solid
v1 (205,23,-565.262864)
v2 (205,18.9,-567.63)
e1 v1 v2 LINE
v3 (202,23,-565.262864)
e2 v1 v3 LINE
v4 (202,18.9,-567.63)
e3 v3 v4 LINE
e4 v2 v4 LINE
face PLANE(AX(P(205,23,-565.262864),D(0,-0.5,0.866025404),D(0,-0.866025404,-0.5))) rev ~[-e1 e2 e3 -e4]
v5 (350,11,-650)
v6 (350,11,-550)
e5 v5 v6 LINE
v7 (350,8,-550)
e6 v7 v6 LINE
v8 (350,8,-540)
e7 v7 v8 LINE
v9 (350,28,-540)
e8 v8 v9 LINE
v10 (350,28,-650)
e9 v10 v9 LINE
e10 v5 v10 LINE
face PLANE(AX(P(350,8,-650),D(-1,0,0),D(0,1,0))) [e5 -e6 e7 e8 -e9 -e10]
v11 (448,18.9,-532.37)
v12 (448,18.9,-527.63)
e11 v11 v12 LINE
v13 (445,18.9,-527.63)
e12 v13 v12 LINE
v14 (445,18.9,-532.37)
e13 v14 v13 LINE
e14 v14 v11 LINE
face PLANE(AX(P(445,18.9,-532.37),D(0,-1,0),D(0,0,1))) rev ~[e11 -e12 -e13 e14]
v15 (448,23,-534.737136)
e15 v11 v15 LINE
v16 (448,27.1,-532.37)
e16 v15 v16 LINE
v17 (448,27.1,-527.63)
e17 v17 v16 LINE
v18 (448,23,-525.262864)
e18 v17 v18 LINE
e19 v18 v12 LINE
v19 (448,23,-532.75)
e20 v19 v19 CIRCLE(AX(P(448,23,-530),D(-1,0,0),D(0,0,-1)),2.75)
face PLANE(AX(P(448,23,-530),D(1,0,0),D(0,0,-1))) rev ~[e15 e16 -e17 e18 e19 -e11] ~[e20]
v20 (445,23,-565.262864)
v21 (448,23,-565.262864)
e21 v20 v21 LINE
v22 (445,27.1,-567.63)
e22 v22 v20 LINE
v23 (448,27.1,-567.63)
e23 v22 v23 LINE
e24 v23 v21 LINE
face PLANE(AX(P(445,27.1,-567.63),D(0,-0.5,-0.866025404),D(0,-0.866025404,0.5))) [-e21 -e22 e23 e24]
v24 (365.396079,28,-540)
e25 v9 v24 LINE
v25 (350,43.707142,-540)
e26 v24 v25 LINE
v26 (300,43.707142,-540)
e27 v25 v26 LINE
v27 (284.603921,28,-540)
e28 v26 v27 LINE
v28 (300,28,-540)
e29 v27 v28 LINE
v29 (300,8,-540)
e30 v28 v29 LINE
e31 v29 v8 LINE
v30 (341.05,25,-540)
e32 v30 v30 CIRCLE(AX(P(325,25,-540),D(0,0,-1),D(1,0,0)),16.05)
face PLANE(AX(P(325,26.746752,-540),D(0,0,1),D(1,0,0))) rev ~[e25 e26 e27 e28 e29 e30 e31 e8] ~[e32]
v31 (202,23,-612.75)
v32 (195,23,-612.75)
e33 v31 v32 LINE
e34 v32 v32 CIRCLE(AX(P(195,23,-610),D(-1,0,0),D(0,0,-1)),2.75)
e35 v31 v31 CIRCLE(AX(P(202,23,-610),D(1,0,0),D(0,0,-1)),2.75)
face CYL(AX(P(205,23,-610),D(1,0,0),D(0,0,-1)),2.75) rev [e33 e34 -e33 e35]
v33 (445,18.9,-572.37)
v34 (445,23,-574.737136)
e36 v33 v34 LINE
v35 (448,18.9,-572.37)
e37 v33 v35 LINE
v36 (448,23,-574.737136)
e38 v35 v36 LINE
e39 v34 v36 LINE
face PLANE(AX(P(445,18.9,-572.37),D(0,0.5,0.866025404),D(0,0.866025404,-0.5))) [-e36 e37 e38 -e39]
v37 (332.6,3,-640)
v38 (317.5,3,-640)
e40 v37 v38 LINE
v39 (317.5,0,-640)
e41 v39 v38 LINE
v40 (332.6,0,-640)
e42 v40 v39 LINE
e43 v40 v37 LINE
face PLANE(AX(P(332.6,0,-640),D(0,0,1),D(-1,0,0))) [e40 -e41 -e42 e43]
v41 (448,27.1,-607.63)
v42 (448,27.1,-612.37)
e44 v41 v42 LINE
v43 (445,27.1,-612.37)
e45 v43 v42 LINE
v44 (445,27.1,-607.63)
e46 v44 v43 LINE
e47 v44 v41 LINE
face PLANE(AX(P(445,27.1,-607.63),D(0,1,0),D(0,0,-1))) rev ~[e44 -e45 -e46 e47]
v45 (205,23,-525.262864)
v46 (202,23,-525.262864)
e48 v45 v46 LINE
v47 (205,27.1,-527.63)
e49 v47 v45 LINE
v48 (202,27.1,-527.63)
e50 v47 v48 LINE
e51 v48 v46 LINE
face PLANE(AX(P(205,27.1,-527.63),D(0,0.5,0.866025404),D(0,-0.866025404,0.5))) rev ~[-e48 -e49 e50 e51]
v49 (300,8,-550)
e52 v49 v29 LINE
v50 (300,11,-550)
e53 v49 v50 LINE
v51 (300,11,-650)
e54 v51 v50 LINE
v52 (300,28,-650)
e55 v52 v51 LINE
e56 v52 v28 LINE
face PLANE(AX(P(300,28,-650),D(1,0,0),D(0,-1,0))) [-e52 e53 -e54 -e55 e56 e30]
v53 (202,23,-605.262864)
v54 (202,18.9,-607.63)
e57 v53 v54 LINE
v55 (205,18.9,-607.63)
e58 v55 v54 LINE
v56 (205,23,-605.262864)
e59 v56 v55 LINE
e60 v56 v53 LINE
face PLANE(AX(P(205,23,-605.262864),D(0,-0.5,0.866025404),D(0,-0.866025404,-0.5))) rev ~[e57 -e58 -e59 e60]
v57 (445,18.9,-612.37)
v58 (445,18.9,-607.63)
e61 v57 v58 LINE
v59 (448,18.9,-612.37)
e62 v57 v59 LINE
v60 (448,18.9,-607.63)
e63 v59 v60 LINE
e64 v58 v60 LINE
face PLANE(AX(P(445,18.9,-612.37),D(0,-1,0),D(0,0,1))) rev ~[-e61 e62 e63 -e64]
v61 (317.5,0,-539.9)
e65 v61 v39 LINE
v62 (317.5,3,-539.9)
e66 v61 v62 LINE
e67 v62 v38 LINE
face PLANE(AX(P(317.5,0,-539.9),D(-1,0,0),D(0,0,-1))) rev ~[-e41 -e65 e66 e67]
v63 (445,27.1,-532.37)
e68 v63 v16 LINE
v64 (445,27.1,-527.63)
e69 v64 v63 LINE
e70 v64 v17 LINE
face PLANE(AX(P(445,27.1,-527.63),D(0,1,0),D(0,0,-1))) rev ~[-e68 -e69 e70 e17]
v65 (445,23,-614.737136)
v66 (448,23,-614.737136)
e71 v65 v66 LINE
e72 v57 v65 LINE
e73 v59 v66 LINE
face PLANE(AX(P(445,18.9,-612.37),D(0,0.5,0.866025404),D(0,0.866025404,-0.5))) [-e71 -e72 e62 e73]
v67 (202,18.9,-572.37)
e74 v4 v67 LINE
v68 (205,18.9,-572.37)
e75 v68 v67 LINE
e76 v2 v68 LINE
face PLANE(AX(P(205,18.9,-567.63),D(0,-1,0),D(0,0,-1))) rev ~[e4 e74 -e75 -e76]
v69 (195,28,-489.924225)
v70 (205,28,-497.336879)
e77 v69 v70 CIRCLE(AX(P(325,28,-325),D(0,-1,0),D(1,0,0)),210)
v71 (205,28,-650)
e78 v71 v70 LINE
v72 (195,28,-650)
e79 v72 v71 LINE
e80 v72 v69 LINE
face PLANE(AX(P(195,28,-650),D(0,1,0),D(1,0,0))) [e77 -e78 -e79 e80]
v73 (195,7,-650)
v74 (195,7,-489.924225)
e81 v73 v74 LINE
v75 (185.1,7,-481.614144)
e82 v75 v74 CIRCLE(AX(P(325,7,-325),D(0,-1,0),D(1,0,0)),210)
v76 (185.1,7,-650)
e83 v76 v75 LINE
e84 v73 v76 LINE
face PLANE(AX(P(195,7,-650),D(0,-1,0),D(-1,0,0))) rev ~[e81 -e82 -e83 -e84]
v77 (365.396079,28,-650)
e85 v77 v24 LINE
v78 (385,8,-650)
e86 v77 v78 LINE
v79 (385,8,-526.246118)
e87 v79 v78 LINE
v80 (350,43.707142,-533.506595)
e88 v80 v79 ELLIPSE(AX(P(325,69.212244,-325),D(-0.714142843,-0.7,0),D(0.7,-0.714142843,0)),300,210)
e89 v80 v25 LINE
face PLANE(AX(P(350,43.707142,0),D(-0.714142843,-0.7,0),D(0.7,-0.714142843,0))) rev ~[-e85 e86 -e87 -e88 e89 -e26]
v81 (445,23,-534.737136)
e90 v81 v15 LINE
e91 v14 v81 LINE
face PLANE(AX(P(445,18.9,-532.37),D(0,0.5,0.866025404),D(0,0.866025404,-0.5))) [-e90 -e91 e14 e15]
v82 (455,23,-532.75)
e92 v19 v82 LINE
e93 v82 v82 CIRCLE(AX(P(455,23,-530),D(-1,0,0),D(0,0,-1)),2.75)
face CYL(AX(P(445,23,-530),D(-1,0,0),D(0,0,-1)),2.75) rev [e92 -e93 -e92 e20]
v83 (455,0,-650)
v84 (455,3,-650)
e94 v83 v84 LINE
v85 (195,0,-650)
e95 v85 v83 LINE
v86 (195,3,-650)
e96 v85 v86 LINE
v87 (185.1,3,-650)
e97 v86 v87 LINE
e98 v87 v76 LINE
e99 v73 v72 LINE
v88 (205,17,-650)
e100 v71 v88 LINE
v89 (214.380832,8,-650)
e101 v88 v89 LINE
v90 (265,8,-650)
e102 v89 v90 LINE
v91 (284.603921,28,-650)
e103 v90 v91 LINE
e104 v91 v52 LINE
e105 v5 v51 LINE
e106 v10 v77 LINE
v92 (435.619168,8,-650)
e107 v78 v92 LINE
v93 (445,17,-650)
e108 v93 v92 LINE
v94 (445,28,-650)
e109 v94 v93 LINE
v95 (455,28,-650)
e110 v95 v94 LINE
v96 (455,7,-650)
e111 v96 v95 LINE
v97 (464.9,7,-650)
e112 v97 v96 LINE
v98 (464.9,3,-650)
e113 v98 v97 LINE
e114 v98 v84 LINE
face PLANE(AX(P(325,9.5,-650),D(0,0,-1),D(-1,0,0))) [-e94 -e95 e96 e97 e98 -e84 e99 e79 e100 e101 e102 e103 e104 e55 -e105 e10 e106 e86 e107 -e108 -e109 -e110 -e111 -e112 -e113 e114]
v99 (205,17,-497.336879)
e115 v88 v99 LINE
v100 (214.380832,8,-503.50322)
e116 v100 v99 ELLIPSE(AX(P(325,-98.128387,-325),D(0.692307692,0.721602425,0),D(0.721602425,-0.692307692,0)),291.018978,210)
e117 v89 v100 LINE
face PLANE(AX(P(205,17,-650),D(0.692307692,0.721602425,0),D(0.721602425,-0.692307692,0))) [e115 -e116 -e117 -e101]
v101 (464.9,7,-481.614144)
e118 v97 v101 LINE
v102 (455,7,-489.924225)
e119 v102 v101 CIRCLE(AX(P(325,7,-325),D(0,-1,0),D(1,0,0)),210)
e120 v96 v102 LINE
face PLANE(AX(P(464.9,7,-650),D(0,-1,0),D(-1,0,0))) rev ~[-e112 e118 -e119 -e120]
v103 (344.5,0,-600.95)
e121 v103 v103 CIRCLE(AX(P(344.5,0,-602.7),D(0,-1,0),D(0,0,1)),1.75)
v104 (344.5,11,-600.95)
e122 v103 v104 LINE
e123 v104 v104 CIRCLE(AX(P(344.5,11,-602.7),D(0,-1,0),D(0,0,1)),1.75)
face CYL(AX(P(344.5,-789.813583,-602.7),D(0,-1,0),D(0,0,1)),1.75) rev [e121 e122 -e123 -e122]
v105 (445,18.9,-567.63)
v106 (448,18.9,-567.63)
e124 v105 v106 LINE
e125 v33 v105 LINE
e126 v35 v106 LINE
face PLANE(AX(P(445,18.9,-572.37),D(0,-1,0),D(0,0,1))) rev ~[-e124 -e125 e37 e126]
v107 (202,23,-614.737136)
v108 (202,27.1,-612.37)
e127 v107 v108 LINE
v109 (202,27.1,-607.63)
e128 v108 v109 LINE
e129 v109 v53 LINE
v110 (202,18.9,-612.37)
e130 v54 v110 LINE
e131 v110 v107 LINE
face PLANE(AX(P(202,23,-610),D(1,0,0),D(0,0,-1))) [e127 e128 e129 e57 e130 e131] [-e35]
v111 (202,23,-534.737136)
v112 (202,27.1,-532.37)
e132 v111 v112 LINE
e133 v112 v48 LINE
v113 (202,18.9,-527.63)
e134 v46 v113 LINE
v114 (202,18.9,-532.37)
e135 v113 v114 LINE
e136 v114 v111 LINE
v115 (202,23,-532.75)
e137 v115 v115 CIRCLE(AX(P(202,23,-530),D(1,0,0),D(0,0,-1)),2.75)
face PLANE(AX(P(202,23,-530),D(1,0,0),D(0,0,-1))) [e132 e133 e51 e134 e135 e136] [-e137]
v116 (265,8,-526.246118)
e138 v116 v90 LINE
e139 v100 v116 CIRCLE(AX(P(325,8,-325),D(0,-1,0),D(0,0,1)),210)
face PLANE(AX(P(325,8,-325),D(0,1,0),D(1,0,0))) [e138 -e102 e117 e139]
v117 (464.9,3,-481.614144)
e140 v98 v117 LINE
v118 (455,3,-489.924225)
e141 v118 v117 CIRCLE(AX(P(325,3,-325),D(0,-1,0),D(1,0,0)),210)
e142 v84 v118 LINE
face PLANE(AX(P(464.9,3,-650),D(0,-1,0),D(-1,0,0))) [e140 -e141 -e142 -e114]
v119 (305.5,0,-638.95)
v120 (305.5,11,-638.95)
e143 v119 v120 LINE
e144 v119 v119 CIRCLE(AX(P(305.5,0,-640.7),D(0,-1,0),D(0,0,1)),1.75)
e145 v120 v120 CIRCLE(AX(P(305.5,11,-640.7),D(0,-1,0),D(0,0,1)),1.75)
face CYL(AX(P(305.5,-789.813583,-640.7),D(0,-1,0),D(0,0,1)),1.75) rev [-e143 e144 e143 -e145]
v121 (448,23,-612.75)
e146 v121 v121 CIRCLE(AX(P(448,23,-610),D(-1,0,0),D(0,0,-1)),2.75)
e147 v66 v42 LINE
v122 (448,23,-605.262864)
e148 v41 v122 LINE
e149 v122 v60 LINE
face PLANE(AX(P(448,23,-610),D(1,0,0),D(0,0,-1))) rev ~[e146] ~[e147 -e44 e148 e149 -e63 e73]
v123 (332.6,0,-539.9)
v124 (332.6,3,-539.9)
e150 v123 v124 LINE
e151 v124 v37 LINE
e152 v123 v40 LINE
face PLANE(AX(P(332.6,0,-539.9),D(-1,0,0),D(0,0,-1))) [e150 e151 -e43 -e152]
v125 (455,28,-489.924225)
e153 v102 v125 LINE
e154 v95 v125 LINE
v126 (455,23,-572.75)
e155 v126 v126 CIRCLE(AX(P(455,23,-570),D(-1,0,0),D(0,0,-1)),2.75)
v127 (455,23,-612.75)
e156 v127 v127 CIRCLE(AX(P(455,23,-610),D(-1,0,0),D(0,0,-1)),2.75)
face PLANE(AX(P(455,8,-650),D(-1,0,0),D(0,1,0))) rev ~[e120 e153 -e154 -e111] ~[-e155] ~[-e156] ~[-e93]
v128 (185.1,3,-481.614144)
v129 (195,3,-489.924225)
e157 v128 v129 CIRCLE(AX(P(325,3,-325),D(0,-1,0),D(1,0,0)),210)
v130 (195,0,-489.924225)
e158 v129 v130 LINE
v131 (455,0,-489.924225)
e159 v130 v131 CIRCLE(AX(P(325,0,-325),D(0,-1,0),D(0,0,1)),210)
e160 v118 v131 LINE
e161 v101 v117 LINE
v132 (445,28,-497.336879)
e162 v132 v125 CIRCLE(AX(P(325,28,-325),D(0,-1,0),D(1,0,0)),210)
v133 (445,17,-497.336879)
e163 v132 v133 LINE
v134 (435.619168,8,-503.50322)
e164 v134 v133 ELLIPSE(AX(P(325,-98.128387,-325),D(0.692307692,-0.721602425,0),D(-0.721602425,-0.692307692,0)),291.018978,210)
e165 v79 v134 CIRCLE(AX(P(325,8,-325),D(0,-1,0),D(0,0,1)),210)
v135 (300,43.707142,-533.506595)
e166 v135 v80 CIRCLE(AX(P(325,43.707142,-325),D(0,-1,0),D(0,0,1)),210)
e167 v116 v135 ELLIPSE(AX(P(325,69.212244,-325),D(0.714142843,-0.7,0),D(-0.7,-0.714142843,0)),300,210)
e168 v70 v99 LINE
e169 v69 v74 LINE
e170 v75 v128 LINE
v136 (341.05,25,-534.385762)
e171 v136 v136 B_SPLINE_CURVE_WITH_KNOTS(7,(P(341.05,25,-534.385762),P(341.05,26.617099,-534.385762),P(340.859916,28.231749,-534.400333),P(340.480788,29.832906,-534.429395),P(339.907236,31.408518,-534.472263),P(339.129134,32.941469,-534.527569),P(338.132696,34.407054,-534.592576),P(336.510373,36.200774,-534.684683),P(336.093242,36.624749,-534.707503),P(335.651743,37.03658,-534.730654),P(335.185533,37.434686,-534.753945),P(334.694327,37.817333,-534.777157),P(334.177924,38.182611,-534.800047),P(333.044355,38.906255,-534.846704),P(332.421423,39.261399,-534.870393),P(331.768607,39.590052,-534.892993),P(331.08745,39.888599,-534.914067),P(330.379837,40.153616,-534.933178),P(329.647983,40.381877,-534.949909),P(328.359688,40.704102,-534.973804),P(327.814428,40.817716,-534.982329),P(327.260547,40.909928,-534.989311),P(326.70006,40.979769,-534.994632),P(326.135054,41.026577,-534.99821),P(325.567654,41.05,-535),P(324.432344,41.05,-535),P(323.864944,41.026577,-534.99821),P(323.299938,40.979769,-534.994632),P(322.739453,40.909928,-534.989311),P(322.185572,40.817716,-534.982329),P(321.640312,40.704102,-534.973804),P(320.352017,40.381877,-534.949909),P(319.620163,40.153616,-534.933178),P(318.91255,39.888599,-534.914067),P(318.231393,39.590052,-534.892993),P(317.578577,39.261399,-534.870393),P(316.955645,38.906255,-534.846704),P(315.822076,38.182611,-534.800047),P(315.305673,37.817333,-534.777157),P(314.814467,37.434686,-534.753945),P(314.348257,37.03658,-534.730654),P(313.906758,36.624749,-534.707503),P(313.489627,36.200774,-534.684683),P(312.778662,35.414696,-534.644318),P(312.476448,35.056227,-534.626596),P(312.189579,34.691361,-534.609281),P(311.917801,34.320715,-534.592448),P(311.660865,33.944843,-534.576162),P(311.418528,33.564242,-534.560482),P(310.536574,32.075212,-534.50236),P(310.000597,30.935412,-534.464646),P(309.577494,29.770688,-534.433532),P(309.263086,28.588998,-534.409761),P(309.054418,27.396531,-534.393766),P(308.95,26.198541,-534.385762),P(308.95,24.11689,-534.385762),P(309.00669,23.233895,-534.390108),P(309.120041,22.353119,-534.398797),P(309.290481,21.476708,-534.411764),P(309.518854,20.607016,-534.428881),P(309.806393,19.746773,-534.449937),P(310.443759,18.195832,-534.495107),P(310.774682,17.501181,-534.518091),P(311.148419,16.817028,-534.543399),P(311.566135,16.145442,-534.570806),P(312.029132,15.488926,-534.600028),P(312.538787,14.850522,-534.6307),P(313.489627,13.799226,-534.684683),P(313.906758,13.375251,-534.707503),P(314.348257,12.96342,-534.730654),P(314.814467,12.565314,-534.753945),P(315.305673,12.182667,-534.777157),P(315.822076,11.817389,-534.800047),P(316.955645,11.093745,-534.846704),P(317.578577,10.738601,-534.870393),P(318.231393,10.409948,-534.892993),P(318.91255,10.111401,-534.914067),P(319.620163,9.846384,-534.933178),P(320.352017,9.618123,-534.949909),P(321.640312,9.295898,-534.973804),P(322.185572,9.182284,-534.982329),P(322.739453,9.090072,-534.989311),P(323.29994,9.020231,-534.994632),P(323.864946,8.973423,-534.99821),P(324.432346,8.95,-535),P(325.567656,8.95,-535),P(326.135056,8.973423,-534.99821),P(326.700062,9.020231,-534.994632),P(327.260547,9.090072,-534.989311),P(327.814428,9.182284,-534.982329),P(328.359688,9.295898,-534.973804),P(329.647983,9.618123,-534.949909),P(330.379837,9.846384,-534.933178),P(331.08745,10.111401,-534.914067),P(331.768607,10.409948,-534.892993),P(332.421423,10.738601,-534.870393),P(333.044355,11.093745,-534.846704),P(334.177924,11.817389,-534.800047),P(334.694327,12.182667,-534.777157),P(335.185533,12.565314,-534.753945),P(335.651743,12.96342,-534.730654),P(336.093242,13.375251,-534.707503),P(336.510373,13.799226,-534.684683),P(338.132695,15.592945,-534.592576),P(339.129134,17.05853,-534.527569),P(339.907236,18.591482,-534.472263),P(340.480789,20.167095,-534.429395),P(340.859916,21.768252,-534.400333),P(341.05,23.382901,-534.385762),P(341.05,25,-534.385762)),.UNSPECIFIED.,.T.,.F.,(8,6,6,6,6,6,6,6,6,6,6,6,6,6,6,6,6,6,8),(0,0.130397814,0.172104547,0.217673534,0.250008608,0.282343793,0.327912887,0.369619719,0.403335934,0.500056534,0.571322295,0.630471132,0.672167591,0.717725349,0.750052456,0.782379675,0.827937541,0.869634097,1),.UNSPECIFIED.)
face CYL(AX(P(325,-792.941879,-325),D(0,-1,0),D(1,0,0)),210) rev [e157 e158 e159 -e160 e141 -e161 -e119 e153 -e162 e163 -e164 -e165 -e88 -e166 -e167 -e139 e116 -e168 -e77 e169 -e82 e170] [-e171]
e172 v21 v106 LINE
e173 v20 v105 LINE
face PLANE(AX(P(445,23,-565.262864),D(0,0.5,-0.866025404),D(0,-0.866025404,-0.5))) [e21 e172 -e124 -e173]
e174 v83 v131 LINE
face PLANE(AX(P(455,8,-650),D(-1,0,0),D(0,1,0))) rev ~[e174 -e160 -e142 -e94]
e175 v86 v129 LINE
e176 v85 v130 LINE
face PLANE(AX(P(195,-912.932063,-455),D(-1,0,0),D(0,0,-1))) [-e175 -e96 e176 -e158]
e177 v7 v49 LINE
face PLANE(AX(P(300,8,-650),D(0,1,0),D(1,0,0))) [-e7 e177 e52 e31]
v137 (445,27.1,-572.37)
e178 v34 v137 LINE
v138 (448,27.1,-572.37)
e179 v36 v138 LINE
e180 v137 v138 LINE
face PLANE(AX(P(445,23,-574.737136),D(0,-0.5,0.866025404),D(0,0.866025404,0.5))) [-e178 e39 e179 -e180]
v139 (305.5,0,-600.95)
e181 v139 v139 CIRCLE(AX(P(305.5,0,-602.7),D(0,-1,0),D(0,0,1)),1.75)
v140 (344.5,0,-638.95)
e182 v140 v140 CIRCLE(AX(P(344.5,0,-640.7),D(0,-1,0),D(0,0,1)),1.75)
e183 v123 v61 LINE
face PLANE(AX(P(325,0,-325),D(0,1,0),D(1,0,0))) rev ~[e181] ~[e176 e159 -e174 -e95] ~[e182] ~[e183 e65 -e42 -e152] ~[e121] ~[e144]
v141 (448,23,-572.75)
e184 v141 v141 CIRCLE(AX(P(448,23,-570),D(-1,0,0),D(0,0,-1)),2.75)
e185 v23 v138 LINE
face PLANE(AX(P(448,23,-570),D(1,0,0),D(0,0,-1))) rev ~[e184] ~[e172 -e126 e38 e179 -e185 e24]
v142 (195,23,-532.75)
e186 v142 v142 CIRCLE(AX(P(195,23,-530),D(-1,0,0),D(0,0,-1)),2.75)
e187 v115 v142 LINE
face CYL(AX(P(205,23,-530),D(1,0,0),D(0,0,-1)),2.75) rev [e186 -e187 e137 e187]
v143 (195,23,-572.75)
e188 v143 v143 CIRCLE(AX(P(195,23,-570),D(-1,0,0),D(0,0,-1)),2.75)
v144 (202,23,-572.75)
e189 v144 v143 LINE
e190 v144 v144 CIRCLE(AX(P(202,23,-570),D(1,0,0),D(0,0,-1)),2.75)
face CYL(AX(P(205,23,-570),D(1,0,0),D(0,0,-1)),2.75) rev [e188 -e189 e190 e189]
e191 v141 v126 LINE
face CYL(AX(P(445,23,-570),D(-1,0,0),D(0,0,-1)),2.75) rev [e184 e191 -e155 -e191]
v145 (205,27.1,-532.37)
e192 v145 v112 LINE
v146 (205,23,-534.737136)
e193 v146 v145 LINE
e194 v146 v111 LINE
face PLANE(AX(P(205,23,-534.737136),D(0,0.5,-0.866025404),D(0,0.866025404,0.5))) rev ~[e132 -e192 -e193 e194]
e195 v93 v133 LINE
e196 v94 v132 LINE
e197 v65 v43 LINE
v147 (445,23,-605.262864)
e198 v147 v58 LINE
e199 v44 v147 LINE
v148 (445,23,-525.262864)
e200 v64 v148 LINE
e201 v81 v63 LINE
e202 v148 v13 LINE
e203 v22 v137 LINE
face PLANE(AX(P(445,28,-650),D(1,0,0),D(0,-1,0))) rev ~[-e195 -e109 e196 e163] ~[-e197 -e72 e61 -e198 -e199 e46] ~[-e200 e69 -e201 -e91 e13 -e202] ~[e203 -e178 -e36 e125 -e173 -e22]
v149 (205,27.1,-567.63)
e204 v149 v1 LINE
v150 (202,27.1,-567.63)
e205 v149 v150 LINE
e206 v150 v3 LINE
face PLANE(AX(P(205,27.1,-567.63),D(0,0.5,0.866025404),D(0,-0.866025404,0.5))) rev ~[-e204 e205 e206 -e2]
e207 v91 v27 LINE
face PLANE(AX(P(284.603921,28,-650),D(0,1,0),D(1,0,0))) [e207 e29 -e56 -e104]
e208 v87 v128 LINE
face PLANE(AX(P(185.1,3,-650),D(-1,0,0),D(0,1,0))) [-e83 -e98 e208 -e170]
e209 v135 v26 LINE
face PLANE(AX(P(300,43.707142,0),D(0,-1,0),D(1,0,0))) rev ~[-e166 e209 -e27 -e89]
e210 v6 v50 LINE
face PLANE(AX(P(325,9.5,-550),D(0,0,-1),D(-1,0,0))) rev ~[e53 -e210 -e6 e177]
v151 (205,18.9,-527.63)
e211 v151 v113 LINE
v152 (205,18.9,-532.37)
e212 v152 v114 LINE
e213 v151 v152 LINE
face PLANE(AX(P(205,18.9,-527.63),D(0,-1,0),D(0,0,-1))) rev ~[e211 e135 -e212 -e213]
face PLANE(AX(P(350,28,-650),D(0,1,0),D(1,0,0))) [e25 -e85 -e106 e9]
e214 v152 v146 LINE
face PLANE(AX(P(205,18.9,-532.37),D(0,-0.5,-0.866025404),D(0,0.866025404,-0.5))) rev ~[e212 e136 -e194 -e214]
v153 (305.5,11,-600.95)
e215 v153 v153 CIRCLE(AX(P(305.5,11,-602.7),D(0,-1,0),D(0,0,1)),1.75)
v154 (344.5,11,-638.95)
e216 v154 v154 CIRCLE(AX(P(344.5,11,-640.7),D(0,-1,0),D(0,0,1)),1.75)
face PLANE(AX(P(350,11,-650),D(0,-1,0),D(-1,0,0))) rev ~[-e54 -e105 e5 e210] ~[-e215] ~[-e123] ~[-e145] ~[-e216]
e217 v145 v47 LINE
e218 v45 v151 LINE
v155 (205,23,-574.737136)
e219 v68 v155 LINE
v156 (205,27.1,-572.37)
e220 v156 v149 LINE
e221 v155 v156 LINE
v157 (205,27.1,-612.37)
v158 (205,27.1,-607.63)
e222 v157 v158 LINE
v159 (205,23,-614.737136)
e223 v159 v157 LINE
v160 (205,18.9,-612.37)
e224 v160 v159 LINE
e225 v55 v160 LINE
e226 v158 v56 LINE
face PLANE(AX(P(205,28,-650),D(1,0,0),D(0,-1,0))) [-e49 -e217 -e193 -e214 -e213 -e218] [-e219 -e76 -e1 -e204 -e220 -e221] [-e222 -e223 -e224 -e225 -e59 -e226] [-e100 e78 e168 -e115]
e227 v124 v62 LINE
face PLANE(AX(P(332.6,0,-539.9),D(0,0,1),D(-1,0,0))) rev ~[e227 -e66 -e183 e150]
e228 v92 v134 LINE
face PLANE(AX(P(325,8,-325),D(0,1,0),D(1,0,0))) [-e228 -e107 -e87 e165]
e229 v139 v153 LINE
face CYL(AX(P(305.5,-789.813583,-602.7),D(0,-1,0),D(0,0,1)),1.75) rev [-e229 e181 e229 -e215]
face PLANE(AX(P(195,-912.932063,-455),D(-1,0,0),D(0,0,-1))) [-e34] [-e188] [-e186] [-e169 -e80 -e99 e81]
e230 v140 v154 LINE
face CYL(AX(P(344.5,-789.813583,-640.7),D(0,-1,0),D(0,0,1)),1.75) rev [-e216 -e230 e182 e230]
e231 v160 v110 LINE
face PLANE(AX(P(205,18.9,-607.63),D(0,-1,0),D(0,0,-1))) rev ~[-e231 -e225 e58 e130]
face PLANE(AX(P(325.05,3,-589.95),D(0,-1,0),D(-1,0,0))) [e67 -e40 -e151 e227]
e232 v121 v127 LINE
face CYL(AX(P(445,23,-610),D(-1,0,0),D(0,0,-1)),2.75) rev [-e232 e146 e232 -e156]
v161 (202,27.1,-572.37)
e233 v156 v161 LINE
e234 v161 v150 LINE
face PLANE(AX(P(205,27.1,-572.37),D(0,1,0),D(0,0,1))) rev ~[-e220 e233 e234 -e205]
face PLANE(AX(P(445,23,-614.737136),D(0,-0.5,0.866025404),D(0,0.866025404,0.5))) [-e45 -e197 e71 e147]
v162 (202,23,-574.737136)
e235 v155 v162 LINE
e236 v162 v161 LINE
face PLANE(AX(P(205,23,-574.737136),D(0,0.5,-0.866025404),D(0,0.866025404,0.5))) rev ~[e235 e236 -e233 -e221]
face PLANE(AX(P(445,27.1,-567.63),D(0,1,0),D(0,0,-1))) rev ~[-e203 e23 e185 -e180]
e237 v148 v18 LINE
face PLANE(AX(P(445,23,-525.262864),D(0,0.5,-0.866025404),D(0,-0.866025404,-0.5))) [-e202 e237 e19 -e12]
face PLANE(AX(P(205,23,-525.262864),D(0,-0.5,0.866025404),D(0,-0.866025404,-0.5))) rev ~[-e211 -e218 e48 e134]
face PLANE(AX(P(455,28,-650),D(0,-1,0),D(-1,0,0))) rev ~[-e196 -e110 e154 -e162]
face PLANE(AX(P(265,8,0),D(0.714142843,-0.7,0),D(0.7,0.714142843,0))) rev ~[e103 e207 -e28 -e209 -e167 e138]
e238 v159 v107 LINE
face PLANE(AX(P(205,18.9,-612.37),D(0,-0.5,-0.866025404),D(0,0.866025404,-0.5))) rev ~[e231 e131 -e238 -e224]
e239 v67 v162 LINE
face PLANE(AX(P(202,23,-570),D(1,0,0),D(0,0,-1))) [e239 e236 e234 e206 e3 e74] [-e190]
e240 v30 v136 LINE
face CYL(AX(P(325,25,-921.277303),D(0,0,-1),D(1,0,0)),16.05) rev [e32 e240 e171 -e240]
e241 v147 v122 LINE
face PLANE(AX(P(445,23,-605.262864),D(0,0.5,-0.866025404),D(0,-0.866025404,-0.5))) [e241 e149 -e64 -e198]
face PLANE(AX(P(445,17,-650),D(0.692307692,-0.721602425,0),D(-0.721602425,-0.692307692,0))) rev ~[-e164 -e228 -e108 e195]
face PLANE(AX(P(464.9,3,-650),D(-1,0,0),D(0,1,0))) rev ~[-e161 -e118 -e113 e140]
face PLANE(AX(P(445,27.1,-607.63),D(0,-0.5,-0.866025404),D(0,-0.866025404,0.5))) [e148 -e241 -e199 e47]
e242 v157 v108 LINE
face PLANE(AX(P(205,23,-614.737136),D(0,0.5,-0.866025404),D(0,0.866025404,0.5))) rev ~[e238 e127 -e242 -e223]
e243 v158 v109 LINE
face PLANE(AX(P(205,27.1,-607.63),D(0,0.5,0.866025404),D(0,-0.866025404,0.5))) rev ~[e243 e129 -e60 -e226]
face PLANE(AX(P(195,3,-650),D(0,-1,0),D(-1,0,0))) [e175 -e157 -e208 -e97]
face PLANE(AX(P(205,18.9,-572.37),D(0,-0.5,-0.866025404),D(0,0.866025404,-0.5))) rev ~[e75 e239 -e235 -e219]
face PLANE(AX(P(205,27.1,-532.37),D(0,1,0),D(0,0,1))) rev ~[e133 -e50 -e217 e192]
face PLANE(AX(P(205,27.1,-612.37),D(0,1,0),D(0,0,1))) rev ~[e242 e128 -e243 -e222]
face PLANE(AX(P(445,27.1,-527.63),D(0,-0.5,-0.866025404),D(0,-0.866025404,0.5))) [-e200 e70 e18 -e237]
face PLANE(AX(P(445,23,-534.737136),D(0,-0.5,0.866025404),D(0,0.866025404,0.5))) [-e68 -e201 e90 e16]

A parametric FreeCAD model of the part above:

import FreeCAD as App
import Part
import Sketcher
from FreeCAD import Vector
Q = App.Units.Quantity


def add_polygon(sketch, points):
    """Adds a closed chain of lines whose ends are joined by coincident constraints."""
    first, n = sketch.GeometryCount, len(points)
    for a, b in zip(points, points[1:] + points[:1]):
        sketch.addGeometry(Part.LineSegment(App.Vector(*a, 0), App.Vector(*b, 0)), False)
    for i in range(n):
        sketch.addConstraint(Sketcher.Constraint("Coincident", first + i, 2, first + (i + 1) % n, 1))

doc = App.newDocument("Part")
body = doc.addObject("PartDesign::Body", "Body")

# Sketch on XZ plane
sketch1 = body.newObject("Sketcher::SketchObject", "Sketch")
sketch1.AttachmentSupport = (doc.getObject("XZ_Plane"), [""])
sketch1.MapMode = "FlatFace"
add_polygon(sketch1, [(0, -650), (0, 0), (650, 0), (650, -650)])  # lines 0-3
sketch1.addConstraint([
    Sketcher.Constraint("Vertical", 0),
    Sketcher.Constraint("Horizontal", 1),
    Sketcher.Constraint("Vertical", 2),
    Sketcher.Constraint("Horizontal", 3),
    Sketcher.Constraint("Coincident", 0, 2, -1, 1),
    Sketcher.Constraint("Equal", 3, 0),
    Sketcher.Constraint("DistanceX", 1, 1, 1, 2, 650.0),
])
pad1 = body.newObject("PartDesign::Pad", "Pad")
pad1.Profile = sketch1
pad1.Length = 8
pad1.Reversed = True

# Sketch on XY plane
sketch2 = body.newObject("Sketcher::SketchObject", "Sketch001")
sketch2.AttachmentSupport = (doc.getObject("XY_Plane"), [""])
sketch2.MapMode = "FlatFace"
add_polygon(sketch2, [(350, 44), (300, 44), (265, 8), (385, 8)])  # lines 0-3
sketch2.addConstraint([
    Sketcher.Constraint("Horizontal", 0),
    Sketcher.Constraint("Horizontal", 2),
    Sketcher.Constraint("Equal", 1, 3),
    Sketcher.Constraint("DistanceX", 0, 2, 0, 1, 50.0),
    Sketcher.Constraint("DistanceX", 2, 1, 2, 2, 120.0),
    Sketcher.Constraint("Distance", 1, 50.0),
    Sketcher.Constraint("DistanceX", -1, 1, 0, 2, 300.0),
    Sketcher.Constraint("DistanceY", -1, 1, 1, 2, 8.0),
])
pad2 = body.newObject("PartDesign::Pad", "Pad001")
pad2.Profile = sketch2
pad2.Length = 650
pad2.Reversed = True

# Sketch on XY plane
sketch3 = body.newObject("Sketcher::SketchObject", "Sketch002")
sketch3.AttachmentSupport = (doc.getObject("XY_Plane"), [""])
sketch3.MapMode = "FlatFace"
sketch3.addGeometry(Part.Circle(Vector(325, 25, 0), Vector(0, 0, 1), 16), False)
sketch3.addConstraint([
    Sketcher.Constraint("Diameter", 0, 32.1),
    Sketcher.Constraint("DistanceX", -1, 1, 0, 3, 325.0),
    Sketcher.Constraint("DistanceY", -1, 1, 0, 3, 25.0),
])
pocket1 = body.newObject("PartDesign::Pocket", "Pocket")
pocket1.Profile = sketch3
pocket1.Type = "ThroughAll"
pocket1.Midplane = True

# Sketch on XZ plane
sketch4 = body.newObject("Sketcher::SketchObject", "Sketch003")
sketch4.AttachmentSupport = (doc.getObject("XZ_Plane"), [""])
sketch4.MapMode = "FlatFace"
sketch4.AttachmentOffset = App.Placement(Vector(0, 0, -8), App.Rotation())
sketch4.addGeometry(Part.Circle(Vector(325, -325, 0), Vector(0, 0, 1), 210), False)
sketch4.addConstraint([
    Sketcher.Constraint("Diameter", 0, 420.0),
    Sketcher.Constraint("DistanceX", -1, 1, 0, 3, 325.0),
    Sketcher.Constraint("DistanceY", 0, 3, -1, 1, 325.0),
])
pocket2 = body.newObject("PartDesign::Pocket", "Pocket001")
pocket2.Profile = sketch4
pocket2.Type = "ThroughAll"
pocket2.Midplane = True

# Sketch on XY plane
sketch5 = body.newObject("Sketcher::SketchObject", "Sketch004")
sketch5.AttachmentSupport = (doc.getObject("XY_Plane"), [""])
sketch5.MapMode = "FlatFace"
add_polygon(sketch5, [(350, 44), (300, 44), (285, 28), (300, 28), (300, 8), (350, 8), (350, 28), (365, 28)])  # lines 0-7
sketch5.addConstraint([
    Sketcher.Constraint("Horizontal", 0),
    Sketcher.Constraint("Horizontal", 2),
    Sketcher.Constraint("Vertical", 3),
    Sketcher.Constraint("Horizontal", 4),
    Sketcher.Constraint("Vertical", 5),
    Sketcher.Constraint("Horizontal", 6),
    Sketcher.Constraint("Horizontal", 2, 2, 5, 2),
    Sketcher.Constraint("Vertical", 0, 2, 2, 2),
    Sketcher.Constraint("Vertical", 5, 2, 7, 2),
    Sketcher.Constraint("Equal", 2, 6),
    Sketcher.Constraint("DistanceX", 0, 2, 0, 1, 50.0),
    Sketcher.Constraint("DistanceY", 3, 2, 3, 1, 20.0),
    Sketcher.Constraint("DistanceX", -1, 1, 0, 2, 300.0),
    Sketcher.Constraint("DistanceY", -1, 1, 1, 2, 28.0),
    Sketcher.Constraint("Distance", 1, 21.994398),
    Sketcher.Constraint("DistanceX", 2, 1, 2, 2, 15.396079),
])
pocket3 = body.newObject("PartDesign::Pocket", "Pocket002")
pocket3.Profile = sketch5
pocket3.Type = "TwoLengths"
pocket3.Length = 921.277303
pocket3.Length2 = 110
pocket3.Reversed = True

# Sketch on XY plane
sketch6 = body.newObject("Sketcher::SketchObject", "Sketch005")
sketch6.AttachmentSupport = (doc.getObject("XY_Plane"), [""])
sketch6.MapMode = "FlatFace"
sketch6.AttachmentOffset = App.Placement(Vector(0, 0, -650), App.Rotation())
add_polygon(sketch6, [(300, 44), (350, 44), (365, 28), (350, 28), (350, 8), (300, 8), (300, 28), (285, 28)])  # lines 0-7
sketch6.addConstraint([
    Sketcher.Constraint("Horizontal", 0),
    Sketcher.Constraint("Horizontal", 2),
    Sketcher.Constraint("Vertical", 3),
    Sketcher.Constraint("Horizontal", 4),
    Sketcher.Constraint("Vertical", 5),
    Sketcher.Constraint("Horizontal", 6),
    Sketcher.Constraint("Horizontal", 2, 2, 5, 2),
    Sketcher.Constraint("Vertical", 0, 2, 2, 2),
    Sketcher.Constraint("Vertical", 5, 2, 7, 2),
    Sketcher.Constraint("Equal", 2, 6),
    Sketcher.Constraint("DistanceX", 0, 1, 0, 2, 50.0),
    Sketcher.Constraint("DistanceY", 3, 2, 3, 1, 20.0),
    Sketcher.Constraint("DistanceX", -1, 1, 0, 2, 350.0),
    Sketcher.Constraint("DistanceY", -1, 1, 1, 2, 28.0),
    Sketcher.Constraint("Distance", 1, 21.994398),
    Sketcher.Constraint("DistanceX", 2, 2, 2, 1, 15.396079),
])
pocket4 = body.newObject("PartDesign::Pocket", "Pocket003")
pocket4.Profile = sketch6
pocket4.Length = 110
pocket4.Reversed = True

# Sketch on XZ plane
sketch7 = body.newObject("Sketcher::SketchObject", "Sketch006")
sketch7.AttachmentSupport = (doc.getObject("XZ_Plane"), [""])
sketch7.MapMode = "FlatFace"
sketch7.AttachmentOffset = App.Placement(Vector(0, 0, -8), App.Rotation())
add_polygon(sketch7, [(-93, -743), (-93, 93), (743, 93), (743, -743)])  # lines 0-3
add_polygon(sketch7, [(455, -455), (195, -455), (195, -687), (455, -687)])  # lines 4-7
sketch7.addConstraint([
    Sketcher.Constraint("Vertical", 0),
    Sketcher.Constraint("Horizontal", 1),
    Sketcher.Constraint("Vertical", 2),
    Sketcher.Constraint("Horizontal", 3),
    Sketcher.Constraint("Horizontal", 4),
    Sketcher.Constraint("Vertical", 5),
    Sketcher.Constraint("Horizontal", 6),
    Sketcher.Constraint("Vertical", 7),
    Sketcher.Constraint("Equal", 3, 0),
    Sketcher.Constraint("DistanceX", 4, 2, 4, 1, 260.0),
    Sketcher.Constraint("DistanceX", -1, 1, 4, 2, 195.0),
    Sketcher.Constraint("DistanceY", 4, 2, -1, 1, 455.0),
    Sketcher.Constraint("DistanceX", 1, 1, 1, 2, 836.056),
    Sketcher.Constraint("DistanceX", 0, 2, -1, 1, 93.028),
    Sketcher.Constraint("DistanceY", -1, 1, 0, 2, 93.028),
    Sketcher.Constraint("DistanceY", 5, 2, 5, 1, 231.544505),
])
pocket5 = body.newObject("PartDesign::Pocket", "Pocket004")
pocket5.Profile = sketch7
pocket5.Type = "ThroughAll"
pocket5.Midplane = True

# Sketch on XY plane
sketch8 = body.newObject("Sketcher::SketchObject", "Sketch007")
sketch8.AttachmentSupport = (doc.getObject("XY_Plane"), [""])
sketch8.MapMode = "FlatFace"
sketch8.AttachmentOffset = App.Placement(Vector(0, 0, -650), App.Rotation())
add_polygon(sketch8, [(455, 28), (455, 8), (436, 8), (445, 17), (445, 28)])  # lines 0-4
add_polygon(sketch8, [(195, 8), (195, 28), (205, 28), (205, 17), (214, 8)])  # lines 5-9
sketch8.addConstraint([
    Sketcher.Constraint("Vertical", 0),
    Sketcher.Constraint("Horizontal", 1),
    Sketcher.Constraint("Vertical", 3),
    Sketcher.Constraint("Horizontal", 4),
    Sketcher.Constraint("Vertical", 5),
    Sketcher.Constraint("Horizontal", 6),
    Sketcher.Constraint("Vertical", 7),
    Sketcher.Constraint("Horizontal", 9),
    Sketcher.Constraint("Horizontal", 4, 2, 5, 2),
    Sketcher.Constraint("Horizontal", 2, 2, 7, 2),
    Sketcher.Constraint("Horizontal", 1, 2, 8, 2),
    Sketcher.Constraint("Equal", 4, 6),
    Sketcher.Constraint("Equal", 1, 9),
    Sketcher.Constraint("DistanceX", 4, 1, 4, 2, 10.0),
    Sketcher.Constraint("DistanceY", 0, 2, 0, 1, 20.0),
    Sketcher.Constraint("DistanceY", 3, 1, 3, 2, 11.0),
    Sketcher.Constraint("Distance", 2, 13.0),
    Sketcher.Constraint("DistanceX", -1, 1, 0, 2, 455.0),
    Sketcher.Constraint("DistanceY", -1, 1, 0, 2, 8.0),
    Sketcher.Constraint("DistanceX", -1, 1, 5, 2, 195.0),
])
pad3 = body.newObject("PartDesign::Pad", "Pad002")
pad3.Profile = sketch8
pad3.Length = 170

# Sketch on XY plane
sketch9 = body.newObject("Sketcher::SketchObject", "Sketch008")
sketch9.AttachmentSupport = (doc.getObject("XY_Plane"), [""])
sketch9.MapMode = "FlatFace"
sketch9.AttachmentOffset = App.Placement(Vector(0, 0, -650), App.Rotation())
add_polygon(sketch9, [(464.9, 7), (464.9, 3), (455, 3), (455, 7)])  # lines 0-3
add_polygon(sketch9, [(195, 7), (195, 3), (185.1, 3), (185.1, 7)])  # lines 4-7
sketch9.addConstraint([
    Sketcher.Constraint("Vertical", 0),
    Sketcher.Constraint("Horizontal", 1),
    Sketcher.Constraint("Vertical", 2),
    Sketcher.Constraint("Horizontal", 3),
    Sketcher.Constraint("Vertical", 4),
    Sketcher.Constraint("Horizontal", 5),
    Sketcher.Constraint("Vertical", 6),
    Sketcher.Constraint("Horizontal", 7),
    Sketcher.Constraint("Horizontal", 1, 2, 4, 2),
    Sketcher.Constraint("Horizontal", 3, 2, 6, 2),
    Sketcher.Constraint("Equal", 3, 5),
    Sketcher.Constraint("DistanceY", 0, 2, 0, 1, 4.0),
    Sketcher.Constraint("DistanceX", 1, 2, 1, 1, 9.9),
    Sketcher.Constraint("DistanceY", -1, 1, 0, 2, 3.0),
    Sketcher.Constraint("DistanceX", -1, 1, 1, 2, 455.0),
    Sketcher.Constraint("DistanceX", -1, 1, 4, 2, 195.0),
])
pad4 = body.newObject("PartDesign::Pad", "Pad003")
pad4.Profile = sketch9
pad4.Length = 170

# Sketch on XZ plane
sketch10 = body.newObject("Sketcher::SketchObject", "Sketch009")
sketch10.AttachmentSupport = (doc.getObject("XZ_Plane"), [""])
sketch10.MapMode = "FlatFace"
sketch10.AttachmentOffset = App.Placement(Vector(0, 0, -8), App.Rotation())
sketch10.addGeometry(Part.Circle(Vector(325, -325, 0), Vector(0, 0, 1), 210), False)
sketch10.addConstraint([
    Sketcher.Constraint("Diameter", 0, 420.0),
    Sketcher.Constraint("DistanceX", -1, 1, 0, 3, 325.0),
    Sketcher.Constraint("DistanceY", 0, 3, -1, 1, 325.0),
])
pocket6 = body.newObject("PartDesign::Pocket", "Pocket005")
pocket6.Profile = sketch10
pocket6.Type = "ThroughAll"
pocket6.Midplane = True

# Sketch on XY plane
sketch11 = body.newObject("Sketcher::SketchObject", "Sketch010")
sketch11.AttachmentSupport = (doc.getObject("XY_Plane"), [""])
sketch11.MapMode = "FlatFace"
sketch11.AttachmentOffset = App.Placement(Vector(0, 0, -650), App.Rotation())
add_polygon(sketch11, [(350, 11), (350, 8), (300, 8), (300, 11)])  # lines 0-3
sketch11.addConstraint([
    Sketcher.Constraint("Vertical", 0),
    Sketcher.Constraint("Horizontal", 1),
    Sketcher.Constraint("Vertical", 2),
    Sketcher.Constraint("Horizontal", 3),
    Sketcher.Constraint("DistanceX", 1, 2, 1, 1, 50.0),
    Sketcher.Constraint("DistanceY", 0, 2, 0, 1, 3.0),
    Sketcher.Constraint("DistanceX", -1, 1, 0, 2, 350.0),
    Sketcher.Constraint("DistanceY", -1, 1, 0, 2, 8.0),
])
pad5 = body.newObject("PartDesign::Pad", "Pad004")
pad5.Profile = sketch11
pad5.Length = 100

# Sketch on XZ plane
sketch12 = body.newObject("Sketcher::SketchObject", "Sketch011")
sketch12.AttachmentSupport = (doc.getObject("XZ_Plane"), [""])
sketch12.MapMode = "FlatFace"
sketch12.AttachmentOffset = App.Placement(Vector(0, 0, -11), App.Rotation())
sketch12.addGeometry([
    Part.Circle(Vector(305.5, -640.7, 0), Vector(0, 0, 1), 1.8),
    Part.Circle(Vector(344.5, -640.7, 0), Vector(0, 0, 1), 1.8),
    Part.Circle(Vector(344.5, -602.7, 0), Vector(0, 0, 1), 1.8),
    Part.Circle(Vector(305.5, -602.7, 0), Vector(0, 0, 1), 1.8),
], False)
sketch12.addConstraint([
    Sketcher.Constraint("Equal", 0, 1),
    Sketcher.Constraint("Equal", 1, 2),
    Sketcher.Constraint("Equal", 2, 3),
    Sketcher.Constraint("Horizontal", 0, 3, 1, 3),
    Sketcher.Constraint("Horizontal", 2, 3, 3, 3),
    Sketcher.Constraint("Vertical", 1, 3, 2, 3),
    Sketcher.Constraint("Vertical", 0, 3, 3, 3),
    Sketcher.Constraint("Diameter", 0, 3.5),
    Sketcher.Constraint("DistanceX", 0, 3, 1, 3, 39.0),
    Sketcher.Constraint("DistanceY", 1, 3, 2, 3, 38.0),
    Sketcher.Constraint("DistanceX", -1, 1, 0, 3, 305.5),
    Sketcher.Constraint("DistanceY", 0, 3, -1, 1, 640.7),
])
pocket7 = body.newObject("PartDesign::Pocket", "Pocket006")
pocket7.Profile = sketch12
pocket7.Type = "ThroughAll"
pocket7.Midplane = True

# Sketch on YZ plane
sketch13 = body.newObject("Sketcher::SketchObject", "Sketch012")
sketch13.AttachmentSupport = (doc.getObject("YZ_Plane"), [""])
sketch13.MapMode = "FlatFace"
sketch13.AttachmentOffset = App.Placement(Vector(0, 0, 455), App.Rotation())
sketch13.addGeometry([
    Part.Circle(Vector(23, -610, 0), Vector(0, 0, 1), 2.8),
    Part.Circle(Vector(23, -570, 0), Vector(0, 0, 1), 2.8),
    Part.Circle(Vector(23, -530, 0), Vector(0, 0, 1), 2.8),
], False)
sketch13.addConstraint([
    Sketcher.Constraint("Equal", 0, 1),
    Sketcher.Constraint("Equal", 1, 2),
    Sketcher.Constraint("Vertical", 0, 3, 1, 3),
    Sketcher.Constraint("Vertical", 1, 3, 2, 3),
    Sketcher.Constraint("Diameter", 0, 5.5),
    Sketcher.Constraint("DistanceX", -1, 1, 0, 3, 23.0),
    Sketcher.Constraint("DistanceY", 0, 3, -1, 1, 610.0),
    Sketcher.Constraint("DistanceY", 1, 3, -1, 1, 570.0),
    Sketcher.Constraint("DistanceY", 2, 3, -1, 1, 530.0),
])
pocket8 = body.newObject("PartDesign::Pocket", "Pocket007")
pocket8.Profile = sketch13
pocket8.Type = "TwoLengths"
pocket8.Length = 706.164041
pocket8.Length2 = 10
pocket8.Reversed = True

# Sketch on YZ plane
sketch14 = body.newObject("Sketcher::SketchObject", "Sketch013")
sketch14.AttachmentSupport = (doc.getObject("YZ_Plane"), [""])
sketch14.MapMode = "FlatFace"
sketch14.AttachmentOffset = App.Placement(Vector(0, 0, 205), App.Rotation())
sketch14.addGeometry([
    Part.Circle(Vector(23, -610, 0), Vector(0, 0, 1), 2.8),
    Part.Circle(Vector(23, -570, 0), Vector(0, 0, 1), 2.8),
    Part.Circle(Vector(23, -530, 0), Vector(0, 0, 1), 2.8),
], False)
sketch14.addConstraint([
    Sketcher.Constraint("Equal", 0, 1),
    Sketcher.Constraint("Equal", 1, 2),
    Sketcher.Constraint("Vertical", 0, 3, 1, 3),
    Sketcher.Constraint("Vertical", 1, 3, 2, 3),
    Sketcher.Constraint("Diameter", 0, 5.5),
    Sketcher.Constraint("DistanceX", -1, 1, 0, 3, 23.0),
    Sketcher.Constraint("DistanceY", 0, 3, -1, 1, 610.0),
    Sketcher.Constraint("DistanceY", 1, 3, -1, 1, 570.0),
    Sketcher.Constraint("DistanceY", 2, 3, -1, 1, 530.0),
])
pocket9 = body.newObject("PartDesign::Pocket", "Pocket008")
pocket9.Profile = sketch14
pocket9.Length = 10

# Sketch on YZ plane
sketch15 = body.newObject("Sketcher::SketchObject", "Sketch014")
sketch15.AttachmentSupport = (doc.getObject("YZ_Plane"), [""])
sketch15.MapMode = "FlatFace"
sketch15.AttachmentOffset = App.Placement(Vector(0, 0, 205), App.Rotation())
add_polygon(sketch15, [(27.1, -527.6), (23, -525.3), (18.9, -527.6), (18.9, -532.4), (23, -534.7), (27.1, -532.4)])  # lines 0-5
sketch15.addConstraint([
    Sketcher.Constraint("Vertical", 2),
    Sketcher.Constraint("Vertical", 5),
    Sketcher.Constraint("Parallel", 0, 3),
    Sketcher.Constraint("Parallel", 1, 4),
    Sketcher.Constraint("Horizontal", 2, 2, 4, 2),
    Sketcher.Constraint("Horizontal", 1, 2, 5, 2),
    Sketcher.Constraint("Vertical", 0, 2, 3, 2),
    Sketcher.Constraint("Angle", 0, Q("150 deg")),
    Sketcher.Constraint("DistanceX", -1, 1, 0, 2, 23.0),
    Sketcher.Constraint("DistanceY", 2, 2, 2, 1, 4.74),
    Sketcher.Constraint("DistanceX", -1, 1, 1, 2, 18.9),
    Sketcher.Constraint("DistanceY", 1, 2, -1, 1, 527.63),
])
pocket10 = body.newObject("PartDesign::Pocket", "Pocket009")
pocket10.Profile = sketch15
pocket10.Length = 3
doc.recompute()

linearpattern = body.newObject("PartDesign::LinearPattern", "LinearPattern")
linearpattern.Originals = [pocket10]
linearpattern.Direction = (doc.getObject("Z_Axis"), [""])
linearpattern.Mode = "offset"
linearpattern.Offset = 40
linearpattern.Occurrences = 3
linearpattern.Reversed = True
body.Tip = linearpattern

# Sketch on YZ plane
sketch16 = body.newObject("Sketcher::SketchObject", "Sketch015")
sketch16.AttachmentSupport = (doc.getObject("YZ_Plane"), [""])
sketch16.MapMode = "FlatFace"
sketch16.AttachmentOffset = App.Placement(Vector(0, 0, 445), App.Rotation())
add_polygon(sketch16, [(27.1, -607.6), (27.1, -612.4), (23, -614.7), (18.9, -612.4), (18.9, -607.6), (23, -605.3)])  # lines 0-5
sketch16.addConstraint([
    Sketcher.Constraint("Vertical", 0),
    Sketcher.Constraint("Vertical", 3),
    Sketcher.Constraint("Parallel", 1, 4),
    Sketcher.Constraint("Parallel", 2, 5),
    Sketcher.Constraint("Horizontal", 0, 2, 2, 2),
    Sketcher.Constraint("Horizontal", 3, 2, 5, 2),
    Sketcher.Constraint("Vertical", 1, 2, 4, 2),
    Sketcher.Constraint("Angle", 1, Q("-150 deg")),
    Sketcher.Constraint("DistanceX", -1, 1, 1, 2, 23.0),
    Sketcher.Constraint("DistanceY", 0, 2, 0, 1, 4.74),
    Sketcher.Constraint("DistanceX", -1, 1, 0, 2, 27.1),
    Sketcher.Constraint("DistanceY", 0, 2, -1, 1, 612.37),
])
pocket11 = body.newObject("PartDesign::Pocket", "Pocket010")
pocket11.Profile = sketch16
pocket11.Length = 3
pocket11.Reversed = True
doc.recompute()

linearpattern2 = body.newObject("PartDesign::LinearPattern", "LinearPattern001")
linearpattern2.Originals = [pocket11]
linearpattern2.Direction = (doc.getObject("Z_Axis"), [""])
linearpattern2.Mode = "offset"
linearpattern2.Offset = 40
linearpattern2.Occurrences = 3
body.Tip = linearpattern2

# Sketch on XZ plane
sketch17 = body.newObject("Sketcher::SketchObject", "Sketch016")
sketch17.AttachmentSupport = (doc.getObject("XZ_Plane"), [""])
sketch17.MapMode = "FlatFace"
add_polygon(sketch17, [(333, -640), (333, -540), (318, -540), (318, -640)])  # lines 0-3
sketch17.addConstraint([
    Sketcher.Constraint("Vertical", 0),
    Sketcher.Constraint("Horizontal", 1),
    Sketcher.Constraint("Vertical", 2),
    Sketcher.Constraint("Horizontal", 3),
    Sketcher.Constraint("DistanceX", 1, 2, 1, 1, 15.1),
    Sketcher.Constraint("DistanceY", 0, 1, 0, 2, 100.1),
    Sketcher.Constraint("DistanceY", 2, 2, -1, 1, 640.0),
    Sketcher.Constraint("DistanceX", -1, 1, 0, 2, 332.6),
])
pocket12 = body.newObject("PartDesign::Pocket", "Pocket011")
pocket12.Profile = sketch17
pocket12.Length = 3

doc.recompute()
